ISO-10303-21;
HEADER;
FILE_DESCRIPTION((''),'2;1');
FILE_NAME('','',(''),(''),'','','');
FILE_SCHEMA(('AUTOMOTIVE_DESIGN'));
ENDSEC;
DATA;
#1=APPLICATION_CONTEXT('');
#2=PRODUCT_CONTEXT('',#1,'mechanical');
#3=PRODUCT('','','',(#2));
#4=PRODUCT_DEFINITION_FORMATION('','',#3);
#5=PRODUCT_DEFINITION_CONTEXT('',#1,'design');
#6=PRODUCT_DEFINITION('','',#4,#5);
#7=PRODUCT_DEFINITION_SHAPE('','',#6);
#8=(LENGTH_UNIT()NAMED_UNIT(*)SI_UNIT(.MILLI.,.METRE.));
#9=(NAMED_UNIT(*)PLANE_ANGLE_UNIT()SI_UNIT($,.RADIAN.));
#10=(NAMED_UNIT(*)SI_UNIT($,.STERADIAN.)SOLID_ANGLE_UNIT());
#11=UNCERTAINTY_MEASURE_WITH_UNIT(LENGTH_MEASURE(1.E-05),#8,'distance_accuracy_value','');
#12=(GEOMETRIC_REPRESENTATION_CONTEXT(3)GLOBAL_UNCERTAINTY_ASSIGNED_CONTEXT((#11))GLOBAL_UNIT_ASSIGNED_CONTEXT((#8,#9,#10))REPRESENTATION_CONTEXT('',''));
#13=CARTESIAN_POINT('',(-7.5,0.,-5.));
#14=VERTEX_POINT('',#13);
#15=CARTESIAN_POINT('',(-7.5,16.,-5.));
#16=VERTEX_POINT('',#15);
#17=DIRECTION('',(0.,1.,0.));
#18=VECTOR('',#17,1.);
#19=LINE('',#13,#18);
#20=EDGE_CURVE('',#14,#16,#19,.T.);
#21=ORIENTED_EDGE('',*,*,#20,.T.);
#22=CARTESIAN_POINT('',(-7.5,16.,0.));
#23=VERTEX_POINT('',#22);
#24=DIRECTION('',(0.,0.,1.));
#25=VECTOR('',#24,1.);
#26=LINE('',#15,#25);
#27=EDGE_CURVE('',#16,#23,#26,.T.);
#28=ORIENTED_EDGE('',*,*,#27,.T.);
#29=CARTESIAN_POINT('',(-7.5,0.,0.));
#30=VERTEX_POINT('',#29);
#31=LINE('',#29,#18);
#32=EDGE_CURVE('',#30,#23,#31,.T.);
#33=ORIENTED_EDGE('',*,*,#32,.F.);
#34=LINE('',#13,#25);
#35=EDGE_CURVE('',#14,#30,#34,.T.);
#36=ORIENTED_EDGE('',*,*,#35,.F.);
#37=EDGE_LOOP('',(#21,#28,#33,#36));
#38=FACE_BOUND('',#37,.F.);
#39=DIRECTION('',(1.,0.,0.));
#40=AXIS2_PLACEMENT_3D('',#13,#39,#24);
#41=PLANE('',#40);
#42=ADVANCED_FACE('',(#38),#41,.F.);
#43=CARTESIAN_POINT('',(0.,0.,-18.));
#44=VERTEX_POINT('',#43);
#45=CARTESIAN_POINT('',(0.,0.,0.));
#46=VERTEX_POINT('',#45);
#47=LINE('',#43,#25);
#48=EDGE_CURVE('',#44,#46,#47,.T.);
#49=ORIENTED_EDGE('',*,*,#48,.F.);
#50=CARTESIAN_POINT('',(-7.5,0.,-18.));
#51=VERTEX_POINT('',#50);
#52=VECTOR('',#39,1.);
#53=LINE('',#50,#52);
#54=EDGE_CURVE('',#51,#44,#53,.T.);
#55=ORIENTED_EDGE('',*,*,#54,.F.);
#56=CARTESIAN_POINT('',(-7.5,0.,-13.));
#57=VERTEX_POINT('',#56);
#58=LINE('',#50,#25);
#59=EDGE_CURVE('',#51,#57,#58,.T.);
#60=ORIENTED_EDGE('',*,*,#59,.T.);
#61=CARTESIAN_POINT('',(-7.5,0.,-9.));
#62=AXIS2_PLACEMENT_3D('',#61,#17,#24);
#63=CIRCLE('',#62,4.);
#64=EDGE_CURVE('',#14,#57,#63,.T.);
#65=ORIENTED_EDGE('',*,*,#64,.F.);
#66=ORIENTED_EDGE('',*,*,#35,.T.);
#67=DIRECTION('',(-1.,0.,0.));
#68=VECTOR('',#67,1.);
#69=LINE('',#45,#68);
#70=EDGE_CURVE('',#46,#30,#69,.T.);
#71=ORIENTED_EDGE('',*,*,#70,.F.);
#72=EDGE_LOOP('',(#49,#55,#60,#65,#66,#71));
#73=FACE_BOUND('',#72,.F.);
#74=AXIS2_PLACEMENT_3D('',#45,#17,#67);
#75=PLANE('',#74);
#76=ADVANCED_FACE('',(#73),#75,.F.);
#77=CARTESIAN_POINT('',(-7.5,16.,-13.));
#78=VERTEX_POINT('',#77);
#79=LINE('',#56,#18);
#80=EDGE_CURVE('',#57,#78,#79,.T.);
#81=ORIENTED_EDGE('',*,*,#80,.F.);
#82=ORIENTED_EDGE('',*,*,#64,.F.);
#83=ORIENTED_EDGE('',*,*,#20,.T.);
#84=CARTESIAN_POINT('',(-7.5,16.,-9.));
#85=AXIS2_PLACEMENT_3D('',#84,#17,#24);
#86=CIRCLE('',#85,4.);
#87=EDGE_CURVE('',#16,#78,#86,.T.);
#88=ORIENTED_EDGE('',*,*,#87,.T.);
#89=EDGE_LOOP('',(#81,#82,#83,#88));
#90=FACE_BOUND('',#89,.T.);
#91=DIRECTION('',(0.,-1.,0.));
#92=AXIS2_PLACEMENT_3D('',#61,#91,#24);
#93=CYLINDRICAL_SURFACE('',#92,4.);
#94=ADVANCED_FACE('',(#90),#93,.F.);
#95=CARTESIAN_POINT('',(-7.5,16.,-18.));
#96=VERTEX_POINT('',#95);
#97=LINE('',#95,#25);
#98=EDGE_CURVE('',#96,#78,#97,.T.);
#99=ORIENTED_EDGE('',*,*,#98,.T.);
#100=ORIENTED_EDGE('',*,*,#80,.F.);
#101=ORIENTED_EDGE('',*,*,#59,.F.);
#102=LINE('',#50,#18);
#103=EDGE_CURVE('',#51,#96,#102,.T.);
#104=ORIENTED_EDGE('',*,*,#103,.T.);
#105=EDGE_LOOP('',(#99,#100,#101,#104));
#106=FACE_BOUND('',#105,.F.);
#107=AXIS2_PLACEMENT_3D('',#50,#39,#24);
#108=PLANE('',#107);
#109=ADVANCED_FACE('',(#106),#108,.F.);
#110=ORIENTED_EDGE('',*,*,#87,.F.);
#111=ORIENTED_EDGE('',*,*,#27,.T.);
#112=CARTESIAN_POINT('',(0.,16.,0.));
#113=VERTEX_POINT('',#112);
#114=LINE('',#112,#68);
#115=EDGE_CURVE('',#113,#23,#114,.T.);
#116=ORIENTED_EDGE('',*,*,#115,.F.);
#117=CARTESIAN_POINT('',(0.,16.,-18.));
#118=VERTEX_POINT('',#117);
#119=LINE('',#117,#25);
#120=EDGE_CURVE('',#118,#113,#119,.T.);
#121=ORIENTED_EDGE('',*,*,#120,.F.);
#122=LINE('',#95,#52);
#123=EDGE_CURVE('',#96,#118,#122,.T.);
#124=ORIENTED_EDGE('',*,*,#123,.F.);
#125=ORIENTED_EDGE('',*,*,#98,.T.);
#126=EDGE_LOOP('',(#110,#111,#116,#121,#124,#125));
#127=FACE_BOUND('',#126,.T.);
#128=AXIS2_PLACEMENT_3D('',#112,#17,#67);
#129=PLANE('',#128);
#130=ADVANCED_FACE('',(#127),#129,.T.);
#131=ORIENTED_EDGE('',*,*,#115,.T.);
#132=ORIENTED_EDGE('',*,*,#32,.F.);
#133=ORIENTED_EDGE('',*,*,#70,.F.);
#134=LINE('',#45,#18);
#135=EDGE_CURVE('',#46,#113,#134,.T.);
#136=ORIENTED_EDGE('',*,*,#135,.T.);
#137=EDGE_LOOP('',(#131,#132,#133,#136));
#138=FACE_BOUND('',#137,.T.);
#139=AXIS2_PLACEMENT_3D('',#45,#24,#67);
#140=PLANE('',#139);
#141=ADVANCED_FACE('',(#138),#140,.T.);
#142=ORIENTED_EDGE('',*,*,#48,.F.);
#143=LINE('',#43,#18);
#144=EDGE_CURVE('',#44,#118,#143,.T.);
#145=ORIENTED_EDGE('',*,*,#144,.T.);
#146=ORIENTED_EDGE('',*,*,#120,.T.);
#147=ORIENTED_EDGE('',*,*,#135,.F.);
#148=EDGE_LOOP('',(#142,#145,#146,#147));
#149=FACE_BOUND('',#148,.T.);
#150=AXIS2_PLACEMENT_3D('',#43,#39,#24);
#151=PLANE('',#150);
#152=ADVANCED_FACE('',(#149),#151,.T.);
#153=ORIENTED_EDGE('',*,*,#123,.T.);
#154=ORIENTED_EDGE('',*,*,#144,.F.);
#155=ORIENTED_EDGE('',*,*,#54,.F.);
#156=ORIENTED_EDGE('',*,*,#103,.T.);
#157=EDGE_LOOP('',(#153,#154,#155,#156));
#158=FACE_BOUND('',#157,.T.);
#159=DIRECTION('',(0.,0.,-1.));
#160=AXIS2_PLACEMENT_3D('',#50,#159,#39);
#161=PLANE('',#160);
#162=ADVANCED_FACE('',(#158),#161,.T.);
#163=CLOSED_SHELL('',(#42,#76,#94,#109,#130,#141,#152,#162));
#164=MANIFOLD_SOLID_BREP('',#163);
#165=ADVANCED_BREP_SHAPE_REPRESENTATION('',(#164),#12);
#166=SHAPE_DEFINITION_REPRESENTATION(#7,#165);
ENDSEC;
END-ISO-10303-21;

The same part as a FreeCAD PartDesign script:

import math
import FreeCAD as App
import Part
import Sketcher
from FreeCAD import Vector
Q = App.Units.Quantity

doc = App.newDocument("Part")
params = doc.addObject("Spreadsheet::Sheet", "Params")
for row, (alias, value) in enumerate([
    ("sketch1_radius", "4 mm"),
    ("sketch1_height", "18 mm"),
    ("sketch1_width", "7.5 mm"),
    ("pad1_length", "16 mm"),
], start=1):
    params.set(f"A{row}", alias)
    params.set(f"B{row}", "=" + value)
    params.setAlias(f"B{row}", alias)

body = doc.addObject("PartDesign::Body", "Body")

sketch1 = body.newObject("Sketcher::SketchObject", "Sketch")
sketch1.AttachmentSupport = (doc.getObject("XZ_Plane"), [""])
sketch1.MapMode = "FlatFace"
sketch1.addGeometry(Part.LineSegment(Vector(-7.5, 0, 0), Vector(0, 0, 0)), False)
sketch1.addGeometry(Part.LineSegment(Vector(0, 0, 0), Vector(0, -18, 0)), False)
sketch1.addGeometry(Part.LineSegment(Vector(0, -18, 0), Vector(-7.5, -18, 0)), False)
sketch1.addGeometry(Part.LineSegment(Vector(-7.5, -18, 0), Vector(-7.5, -13, 0)), False)
sketch1.addGeometry(Part.ArcOfCircle(Part.Circle(Vector(-7.5, -9, 0), Vector(0, 0, 1), 4), math.radians(-90), math.radians(90)), False)
sketch1.addGeometry(Part.LineSegment(Vector(-7.5, -5, 0), Vector(-7.5, 0, 0)), False)
sketch1.addConstraint(Sketcher.Constraint("Coincident", 0, 2, 1, 1))
sketch1.addConstraint(Sketcher.Constraint("Coincident", 1, 2, 2, 1))
sketch1.addConstraint(Sketcher.Constraint("Coincident", 2, 2, 3, 1))
sketch1.addConstraint(Sketcher.Constraint("Coincident", 3, 2, 4, 1))
sketch1.addConstraint(Sketcher.Constraint("Coincident", 4, 2, 5, 1))
sketch1.addConstraint(Sketcher.Constraint("Coincident", 5, 2, 0, 1))
sketch1.addConstraint(Sketcher.Constraint("Horizontal", 0))
sketch1.addConstraint(Sketcher.Constraint("Vertical", 1))
sketch1.addConstraint(Sketcher.Constraint("Horizontal", 2))
sketch1.addConstraint(Sketcher.Constraint("Vertical", 3))
sketch1.addConstraint(Sketcher.Constraint("Vertical", 5))
sketch1.addConstraint(Sketcher.Constraint("Coincident", 0, 2, -1, 1))
sketch1.addConstraint(Sketcher.Constraint("Vertical", 4, 3, 2, 2))
sketch1.addConstraint(Sketcher.Constraint("Vertical", 3, 2, 4, 2))
sketch1.addConstraint(Sketcher.Constraint("Equal", 3, 5))
sketch1.addConstraint(Sketcher.Constraint("Radius", 4, Q("4 mm")))
sketch1.addConstraint(Sketcher.Constraint("DistanceY", 1, 2, 1, 1, Q("18 mm")))
sketch1.addConstraint(Sketcher.Constraint("DistanceX", 0, 1, 0, 2, Q("7.5 mm")))
sketch1.setExpression("Constraints[15]", "Params.sketch1_radius")
sketch1.setExpression("Constraints[16]", "Params.sketch1_height")
sketch1.setExpression("Constraints[17]", "Params.sketch1_width")
pad1 = body.newObject("PartDesign::Pad", "Pad")
pad1.Profile = sketch1
pad1.setExpression("Length", "Params.pad1_length")
pad1.Reversed = True

doc.recompute()
